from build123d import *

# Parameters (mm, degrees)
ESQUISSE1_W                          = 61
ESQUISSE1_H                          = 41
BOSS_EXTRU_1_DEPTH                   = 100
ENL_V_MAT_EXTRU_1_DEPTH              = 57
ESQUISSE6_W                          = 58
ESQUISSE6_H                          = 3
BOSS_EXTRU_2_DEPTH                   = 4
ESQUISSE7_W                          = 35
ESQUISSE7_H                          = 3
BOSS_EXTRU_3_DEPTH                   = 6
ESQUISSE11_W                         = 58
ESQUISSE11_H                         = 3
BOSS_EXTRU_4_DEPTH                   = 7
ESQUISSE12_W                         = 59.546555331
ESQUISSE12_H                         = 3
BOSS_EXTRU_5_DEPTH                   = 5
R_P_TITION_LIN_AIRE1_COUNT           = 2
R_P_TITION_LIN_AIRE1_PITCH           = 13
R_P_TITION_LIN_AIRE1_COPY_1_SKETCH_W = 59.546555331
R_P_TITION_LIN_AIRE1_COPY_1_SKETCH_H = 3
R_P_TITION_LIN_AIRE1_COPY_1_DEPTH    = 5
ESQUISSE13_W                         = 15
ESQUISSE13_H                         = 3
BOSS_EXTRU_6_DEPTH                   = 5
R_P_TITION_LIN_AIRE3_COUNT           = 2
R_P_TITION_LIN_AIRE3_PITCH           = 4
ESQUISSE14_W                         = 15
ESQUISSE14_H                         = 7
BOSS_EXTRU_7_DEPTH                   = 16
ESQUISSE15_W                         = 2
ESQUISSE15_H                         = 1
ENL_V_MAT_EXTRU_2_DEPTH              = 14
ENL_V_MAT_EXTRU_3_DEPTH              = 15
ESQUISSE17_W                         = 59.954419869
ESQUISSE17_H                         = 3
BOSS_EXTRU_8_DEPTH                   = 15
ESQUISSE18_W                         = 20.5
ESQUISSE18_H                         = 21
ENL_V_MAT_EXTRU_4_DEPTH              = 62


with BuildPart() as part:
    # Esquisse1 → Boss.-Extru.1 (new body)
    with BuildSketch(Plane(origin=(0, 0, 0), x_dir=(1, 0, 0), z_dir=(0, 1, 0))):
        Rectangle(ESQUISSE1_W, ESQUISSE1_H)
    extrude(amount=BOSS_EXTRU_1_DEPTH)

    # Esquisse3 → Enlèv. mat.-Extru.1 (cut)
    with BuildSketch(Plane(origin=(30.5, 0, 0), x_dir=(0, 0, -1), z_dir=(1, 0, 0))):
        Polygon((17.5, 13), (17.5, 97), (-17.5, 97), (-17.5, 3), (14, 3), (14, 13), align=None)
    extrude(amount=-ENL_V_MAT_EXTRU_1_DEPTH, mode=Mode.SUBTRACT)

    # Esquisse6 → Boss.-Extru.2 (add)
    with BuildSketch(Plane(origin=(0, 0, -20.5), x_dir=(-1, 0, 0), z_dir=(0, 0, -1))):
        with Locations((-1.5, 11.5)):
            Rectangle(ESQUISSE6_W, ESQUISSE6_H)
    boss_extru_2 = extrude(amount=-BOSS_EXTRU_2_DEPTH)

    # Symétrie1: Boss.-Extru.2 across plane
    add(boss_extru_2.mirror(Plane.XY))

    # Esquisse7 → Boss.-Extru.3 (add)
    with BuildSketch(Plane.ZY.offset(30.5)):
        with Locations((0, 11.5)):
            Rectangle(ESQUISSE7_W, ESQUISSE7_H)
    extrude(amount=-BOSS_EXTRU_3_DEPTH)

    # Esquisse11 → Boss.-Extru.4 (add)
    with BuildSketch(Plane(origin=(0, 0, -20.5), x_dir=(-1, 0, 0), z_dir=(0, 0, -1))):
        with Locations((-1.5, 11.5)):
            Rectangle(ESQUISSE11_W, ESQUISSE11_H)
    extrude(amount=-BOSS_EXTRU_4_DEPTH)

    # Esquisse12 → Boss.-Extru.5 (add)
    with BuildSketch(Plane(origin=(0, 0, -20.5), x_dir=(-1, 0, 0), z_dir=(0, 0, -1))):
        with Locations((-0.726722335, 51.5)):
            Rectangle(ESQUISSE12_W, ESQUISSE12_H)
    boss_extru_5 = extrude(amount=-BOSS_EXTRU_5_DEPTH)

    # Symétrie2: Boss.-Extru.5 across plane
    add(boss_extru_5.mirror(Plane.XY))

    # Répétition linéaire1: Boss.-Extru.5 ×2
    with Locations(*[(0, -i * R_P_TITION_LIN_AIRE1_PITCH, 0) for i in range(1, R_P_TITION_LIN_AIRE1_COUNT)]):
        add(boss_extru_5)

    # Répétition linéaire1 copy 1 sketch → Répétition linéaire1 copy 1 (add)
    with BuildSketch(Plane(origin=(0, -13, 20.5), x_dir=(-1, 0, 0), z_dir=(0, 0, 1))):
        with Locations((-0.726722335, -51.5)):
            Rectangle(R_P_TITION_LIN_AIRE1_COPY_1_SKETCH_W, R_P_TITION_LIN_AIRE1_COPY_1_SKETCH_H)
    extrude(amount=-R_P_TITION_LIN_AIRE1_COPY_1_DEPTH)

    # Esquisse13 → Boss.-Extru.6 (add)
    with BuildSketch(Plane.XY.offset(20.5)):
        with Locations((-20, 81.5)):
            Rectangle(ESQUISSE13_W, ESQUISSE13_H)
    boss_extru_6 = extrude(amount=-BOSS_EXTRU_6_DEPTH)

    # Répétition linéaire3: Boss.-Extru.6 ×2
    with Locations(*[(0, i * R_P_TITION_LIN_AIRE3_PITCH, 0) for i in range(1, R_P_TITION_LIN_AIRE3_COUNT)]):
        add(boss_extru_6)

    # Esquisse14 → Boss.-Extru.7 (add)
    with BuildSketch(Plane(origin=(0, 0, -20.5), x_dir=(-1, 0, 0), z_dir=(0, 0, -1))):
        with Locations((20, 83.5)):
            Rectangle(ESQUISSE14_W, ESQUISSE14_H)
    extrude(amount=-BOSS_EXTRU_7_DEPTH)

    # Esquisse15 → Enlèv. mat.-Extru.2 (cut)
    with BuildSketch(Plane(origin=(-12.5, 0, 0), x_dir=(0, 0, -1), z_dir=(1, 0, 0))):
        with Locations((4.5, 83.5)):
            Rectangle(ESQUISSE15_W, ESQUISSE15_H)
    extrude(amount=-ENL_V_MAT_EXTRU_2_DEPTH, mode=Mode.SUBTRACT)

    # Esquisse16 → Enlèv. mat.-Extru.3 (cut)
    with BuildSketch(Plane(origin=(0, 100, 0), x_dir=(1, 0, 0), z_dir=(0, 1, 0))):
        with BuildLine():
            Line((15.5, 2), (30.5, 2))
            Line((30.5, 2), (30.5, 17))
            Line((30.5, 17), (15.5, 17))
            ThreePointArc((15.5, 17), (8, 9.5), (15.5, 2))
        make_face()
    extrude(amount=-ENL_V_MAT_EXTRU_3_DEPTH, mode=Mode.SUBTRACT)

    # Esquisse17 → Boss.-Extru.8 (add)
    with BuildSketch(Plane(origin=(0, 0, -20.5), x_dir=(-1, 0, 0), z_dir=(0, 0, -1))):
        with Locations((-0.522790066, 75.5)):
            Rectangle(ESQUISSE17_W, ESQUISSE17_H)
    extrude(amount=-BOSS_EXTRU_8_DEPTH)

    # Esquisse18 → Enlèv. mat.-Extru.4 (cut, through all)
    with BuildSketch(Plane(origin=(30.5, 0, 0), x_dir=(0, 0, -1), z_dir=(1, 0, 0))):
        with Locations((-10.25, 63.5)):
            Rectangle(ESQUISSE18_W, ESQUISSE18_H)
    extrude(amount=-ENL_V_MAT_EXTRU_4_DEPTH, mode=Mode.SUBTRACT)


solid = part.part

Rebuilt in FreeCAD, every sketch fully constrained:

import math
import FreeCAD as App
import Part
import Sketcher

V = App.Vector
Q = App.Units.Quantity


def add_polygon(sketch, points):
    """Adds a closed chain of lines whose ends are joined by coincident constraints."""
    first, n = sketch.GeometryCount, len(points)
    for a, b in zip(points, points[1:] + points[:1]):
        sketch.addGeometry(Part.LineSegment(App.Vector(*a, 0), App.Vector(*b, 0)), False)
    for i in range(n):
        sketch.addConstraint(Sketcher.Constraint("Coincident", first + i, 2, first + (i + 1) % n, 1))

doc = App.newDocument("Part")
body = doc.addObject("PartDesign::Body", "Body")

# Sketch on XZ plane
sketch1 = body.newObject("Sketcher::SketchObject", "Sketch")
sketch1.AttachmentSupport = (doc.getObject("XZ_Plane"), [""])
sketch1.MapMode = "FlatFace"
add_polygon(sketch1, [(-30, -20), (-30, 20), (30, 20), (30, -20)])  # lines 0-3
sketch1.addConstraint(Sketcher.Constraint("Vertical", 0))
sketch1.addConstraint(Sketcher.Constraint("Horizontal", 1))
sketch1.addConstraint(Sketcher.Constraint("Vertical", 2))
sketch1.addConstraint(Sketcher.Constraint("Horizontal", 3))
sketch1.addConstraint(Sketcher.Constraint("Symmetric", 0, 2, 2, 2, -1, 1))
sketch1.addConstraint(Sketcher.Constraint("DistanceX", 1, 1, 1, 2, Q("61 mm")))
sketch1.addConstraint(Sketcher.Constraint("DistanceY", 0, 1, 0, 2, Q("41 mm")))
pad1 = body.newObject("PartDesign::Pad", "Pad")
pad1.Profile = sketch1
pad1.Length = 100
pad1.Reversed = True

# Sketch on YZ plane
sketch2 = body.newObject("Sketcher::SketchObject", "Sketch001")
sketch2.AttachmentSupport = (doc.getObject("YZ_Plane"), [""])
sketch2.MapMode = "FlatFace"
sketch2.AttachmentOffset = App.Placement(V(0, 0, 30.5), App.Rotation())
add_polygon(sketch2, [(13, -17.5), (97, -17.5), (97, 17.5), (3, 17.5), (3, -14), (13, -14)])  # lines 0-5
sketch2.addConstraint(Sketcher.Constraint("Horizontal", 0))
sketch2.addConstraint(Sketcher.Constraint("Vertical", 1))
sketch2.addConstraint(Sketcher.Constraint("Horizontal", 2))
sketch2.addConstraint(Sketcher.Constraint("Vertical", 3))
sketch2.addConstraint(Sketcher.Constraint("Horizontal", 4))
sketch2.addConstraint(Sketcher.Constraint("Vertical", 5))
sketch2.addConstraint(Sketcher.Constraint("DistanceX", 0, 1, 0, 2, Q("84 mm")))
sketch2.addConstraint(Sketcher.Constraint("DistanceX", 2, 2, 2, 1, Q("94 mm")))
sketch2.addConstraint(Sketcher.Constraint("DistanceY", 1, 1, 1, 2, Q("35 mm")))
sketch2.addConstraint(Sketcher.Constraint("DistanceY", 3, 2, 3, 1, Q("31.5 mm")))
sketch2.addConstraint(Sketcher.Constraint("DistanceX", -1, 1, 0, 2, Q("97 mm")))
sketch2.addConstraint(Sketcher.Constraint("DistanceY", 3, 2, -1, 1, Q("14 mm")))
pocket1 = body.newObject("PartDesign::Pocket", "Pocket")
pocket1.Profile = sketch2
pocket1.Length = 57

# Sketch on XY plane
sketch3 = body.newObject("Sketcher::SketchObject", "Sketch002")
sketch3.AttachmentSupport = (doc.getObject("XY_Plane"), [""])
sketch3.MapMode = "FlatFace"
sketch3.AttachmentOffset = App.Placement(V(0, 0, -20.5), App.Rotation())
add_polygon(sketch3, [(30.5, 13), (30.5, 10), (-27.5, 10), (-27.5, 13)])  # lines 0-3
sketch3.addConstraint(Sketcher.Constraint("Vertical", 0))
sketch3.addConstraint(Sketcher.Constraint("Horizontal", 1))
sketch3.addConstraint(Sketcher.Constraint("Vertical", 2))
sketch3.addConstraint(Sketcher.Constraint("Horizontal", 3))
sketch3.addConstraint(Sketcher.Constraint("DistanceX", 1, 2, 1, 1, Q("58 mm")))
sketch3.addConstraint(Sketcher.Constraint("DistanceY", 0, 2, 0, 1, Q("3 mm")))
sketch3.addConstraint(Sketcher.Constraint("DistanceY", -1, 1, 0, 2, Q("10 mm")))
sketch3.addConstraint(Sketcher.Constraint("DistanceX", -1, 1, 0, 2, Q("30.5 mm")))
pad2 = body.newObject("PartDesign::Pad", "Pad001")
pad2.Profile = sketch3
pad2.Length = 4
doc.recompute()

mirrored = body.newObject("PartDesign::Mirrored", "Mirrored")
mirrored.Originals = [pad2]
mirrored.MirrorPlane = (doc.getObject("XY_Plane"), [""])
body.Tip = mirrored

# Sketch on YZ plane
sketch4 = body.newObject("Sketcher::SketchObject", "Sketch003")
sketch4.AttachmentSupport = (doc.getObject("YZ_Plane"), [""])
sketch4.MapMode = "FlatFace"
sketch4.AttachmentOffset = App.Placement(V(0, 0, -30.5), App.Rotation())
add_polygon(sketch4, [(13, -17.5), (10, -17.5), (10, 17.5), (13, 17.5)])  # lines 0-3
sketch4.addConstraint(Sketcher.Constraint("Horizontal", 0))
sketch4.addConstraint(Sketcher.Constraint("Vertical", 1))
sketch4.addConstraint(Sketcher.Constraint("Horizontal", 2))
sketch4.addConstraint(Sketcher.Constraint("Vertical", 3))
sketch4.addConstraint(Sketcher.Constraint("DistanceX", 0, 2, 0, 1, Q("3 mm")))
sketch4.addConstraint(Sketcher.Constraint("DistanceY", 1, 1, 1, 2, Q("35 mm")))
sketch4.addConstraint(Sketcher.Constraint("DistanceX", -1, 1, 0, 2, Q("10 mm")))
sketch4.addConstraint(Sketcher.Constraint("DistanceY", 0, 2, -1, 1, Q("17.5 mm")))
pad3 = body.newObject("PartDesign::Pad", "Pad002")
pad3.Profile = sketch4
pad3.Length = 6

# Sketch on XY plane
sketch5 = body.newObject("Sketcher::SketchObject", "Sketch004")
sketch5.AttachmentSupport = (doc.getObject("XY_Plane"), [""])
sketch5.MapMode = "FlatFace"
sketch5.AttachmentOffset = App.Placement(V(0, 0, -20.5), App.Rotation())
add_polygon(sketch5, [(30.5, 13), (30.5, 10), (-27.5, 10), (-27.5, 13)])  # lines 0-3
sketch5.addConstraint(Sketcher.Constraint("Vertical", 0))
sketch5.addConstraint(Sketcher.Constraint("Horizontal", 1))
sketch5.addConstraint(Sketcher.Constraint("Vertical", 2))
sketch5.addConstraint(Sketcher.Constraint("Horizontal", 3))
sketch5.addConstraint(Sketcher.Constraint("DistanceX", 1, 2, 1, 1, Q("58 mm")))
sketch5.addConstraint(Sketcher.Constraint("DistanceY", 0, 2, 0, 1, Q("3 mm")))
sketch5.addConstraint(Sketcher.Constraint("DistanceY", -1, 1, 0, 2, Q("10 mm")))
sketch5.addConstraint(Sketcher.Constraint("DistanceX", -1, 1, 0, 2, Q("30.5 mm")))
pad4 = body.newObject("PartDesign::Pad", "Pad003")
pad4.Profile = sketch5
pad4.Length = 7

# Sketch on XY plane
sketch6 = body.newObject("Sketcher::SketchObject", "Sketch005")
sketch6.AttachmentSupport = (doc.getObject("XY_Plane"), [""])
sketch6.MapMode = "FlatFace"
sketch6.AttachmentOffset = App.Placement(V(0, 0, -20.5), App.Rotation())
add_polygon(sketch6, [(30.5, 53), (30.5, 50), (-29, 50), (-29, 53)])  # lines 0-3
sketch6.addConstraint(Sketcher.Constraint("Vertical", 0))
sketch6.addConstraint(Sketcher.Constraint("Horizontal", 1))
sketch6.addConstraint(Sketcher.Constraint("Vertical", 2))
sketch6.addConstraint(Sketcher.Constraint("Horizontal", 3))
sketch6.addConstraint(Sketcher.Constraint("DistanceY", 0, 2, 0, 1, Q("3 mm")))
sketch6.addConstraint(Sketcher.Constraint("DistanceY", -1, 1, 0, 2, Q("50 mm")))
sketch6.addConstraint(Sketcher.Constraint("DistanceX", -1, 1, 0, 2, Q("30.5 mm")))
sketch6.addConstraint(Sketcher.Constraint("DistanceX", 1, 2, 1, 1, Q("59.546555 mm")))
pad5 = body.newObject("PartDesign::Pad", "Pad004")
pad5.Profile = sketch6
pad5.Length = 5
doc.recompute()

mirrored2 = body.newObject("PartDesign::Mirrored", "Mirrored001")
mirrored2.Originals = [pad5]
mirrored2.MirrorPlane = (doc.getObject("XY_Plane"), [""])
body.Tip = mirrored2
doc.recompute()

linearpattern = body.newObject("PartDesign::LinearPattern", "LinearPattern")
linearpattern.Originals = [pad5]
linearpattern.Direction = (doc.getObject("Y_Axis"), [""])
linearpattern.Mode = "offset"
linearpattern.Offset = 13
linearpattern.Occurrences = 2
linearpattern.Reversed = True
body.Tip = linearpattern

# Sketch on XY plane
sketch7 = body.newObject("Sketcher::SketchObject", "Sketch006")
sketch7.AttachmentSupport = (doc.getObject("XY_Plane"), [""])
sketch7.MapMode = "FlatFace"
sketch7.AttachmentOffset = App.Placement(V(0, 0, 20.5), App.Rotation())
add_polygon(sketch7, [(30.5, 37), (30.5, 40), (-29, 40), (-29, 37)])  # lines 0-3
sketch7.addConstraint(Sketcher.Constraint("Vertical", 0))
sketch7.addConstraint(Sketcher.Constraint("Horizontal", 1))
sketch7.addConstraint(Sketcher.Constraint("Vertical", 2))
sketch7.addConstraint(Sketcher.Constraint("Horizontal", 3))
sketch7.addConstraint(Sketcher.Constraint("DistanceY", 0, 1, 0, 2, Q("3 mm")))
sketch7.addConstraint(Sketcher.Constraint("DistanceY", -1, 1, 0, 2, Q("40 mm")))
sketch7.addConstraint(Sketcher.Constraint("DistanceX", -1, 1, 0, 2, Q("30.5 mm")))
sketch7.addConstraint(Sketcher.Constraint("DistanceX", 1, 2, 1, 1, Q("59.546555 mm")))
pad6 = body.newObject("PartDesign::Pad", "Pad005")
pad6.Profile = sketch7
pad6.Length = 5
pad6.Reversed = True

# Sketch on XY plane
sketch8 = body.newObject("Sketcher::SketchObject", "Sketch007")
sketch8.AttachmentSupport = (doc.getObject("XY_Plane"), [""])
sketch8.MapMode = "FlatFace"
sketch8.AttachmentOffset = App.Placement(V(0, 0, 20.5), App.Rotation())
add_polygon(sketch8, [(-27.5, 83), (-27.5, 80), (-12.5, 80), (-12.5, 83)])  # lines 0-3
sketch8.addConstraint(Sketcher.Constraint("Vertical", 0))
sketch8.addConstraint(Sketcher.Constraint("Horizontal", 1))
sketch8.addConstraint(Sketcher.Constraint("Vertical", 2))
sketch8.addConstraint(Sketcher.Constraint("Horizontal", 3))
sketch8.addConstraint(Sketcher.Constraint("DistanceX", 1, 1, 1, 2, Q("15 mm")))
sketch8.addConstraint(Sketcher.Constraint("DistanceY", 0, 2, 0, 1, Q("3 mm")))
sketch8.addConstraint(Sketcher.Constraint("DistanceY", -1, 1, 0, 2, Q("80 mm")))
sketch8.addConstraint(Sketcher.Constraint("DistanceX", 0, 2, -1, 1, Q("27.5 mm")))
pad7 = body.newObject("PartDesign::Pad", "Pad006")
pad7.Profile = sketch8
pad7.Length = 5
pad7.Reversed = True
doc.recompute()

linearpattern2 = body.newObject("PartDesign::LinearPattern", "LinearPattern001")
linearpattern2.Originals = [pad7]
linearpattern2.Direction = (doc.getObject("Y_Axis"), [""])
linearpattern2.Mode = "offset"
linearpattern2.Offset = 4
linearpattern2.Occurrences = 2
body.Tip = linearpattern2

# Sketch on XY plane
sketch9 = body.newObject("Sketcher::SketchObject", "Sketch008")
sketch9.AttachmentSupport = (doc.getObject("XY_Plane"), [""])
sketch9.MapMode = "FlatFace"
sketch9.AttachmentOffset = App.Placement(V(0, 0, -20.5), App.Rotation())
add_polygon(sketch9, [(-12, 87), (-12, 80), (-28, 80), (-28, 87)])  # lines 0-3
sketch9.addConstraint(Sketcher.Constraint("Vertical", 0))
sketch9.addConstraint(Sketcher.Constraint("Horizontal", 1))
sketch9.addConstraint(Sketcher.Constraint("Vertical", 2))
sketch9.addConstraint(Sketcher.Constraint("Horizontal", 3))
sketch9.addConstraint(Sketcher.Constraint("DistanceX", 1, 2, 1, 1, Q("15 mm")))
sketch9.addConstraint(Sketcher.Constraint("DistanceY", 0, 2, 0, 1, Q("7 mm")))
sketch9.addConstraint(Sketcher.Constraint("DistanceY", -1, 1, 0, 2, Q("80 mm")))
sketch9.addConstraint(Sketcher.Constraint("DistanceX", 0, 2, -1, 1, Q("12.5 mm")))
pad8 = body.newObject("PartDesign::Pad", "Pad007")
pad8.Profile = sketch9
pad8.Length = 16

# Sketch on YZ plane
sketch10 = body.newObject("Sketcher::SketchObject", "Sketch009")
sketch10.AttachmentSupport = (doc.getObject("YZ_Plane"), [""])
sketch10.MapMode = "FlatFace"
sketch10.AttachmentOffset = App.Placement(V(0, 0, -12.5), App.Rotation())
add_polygon(sketch10, [(84, -3.5), (83, -3.5), (83, -5.5), (84, -5.5)])  # lines 0-3
sketch10.addConstraint(Sketcher.Constraint("Horizontal", 0))
sketch10.addConstraint(Sketcher.Constraint("Vertical", 1))
sketch10.addConstraint(Sketcher.Constraint("Horizontal", 2))
sketch10.addConstraint(Sketcher.Constraint("Vertical", 3))
sketch10.addConstraint(Sketcher.Constraint("DistanceX", 0, 2, 0, 1, Q("1 mm")))
sketch10.addConstraint(Sketcher.Constraint("DistanceY", 1, 2, 1, 1, Q("2 mm")))
sketch10.addConstraint(Sketcher.Constraint("DistanceX", -1, 1, 0, 2, Q("83 mm")))
sketch10.addConstraint(Sketcher.Constraint("DistanceY", 0, 2, -1, 1, Q("3.5 mm")))
pocket2 = body.newObject("PartDesign::Pocket", "Pocket001")
pocket2.Profile = sketch10
pocket2.Length = 14

# Sketch on XZ plane
sketch11 = body.newObject("Sketcher::SketchObject", "Sketch010")
sketch11.AttachmentSupport = (doc.getObject("XZ_Plane"), [""])
sketch11.MapMode = "FlatFace"
sketch11.AttachmentOffset = App.Placement(V(0, 0, -100), App.Rotation())
sketch11.addGeometry(Part.LineSegment(V(16, -2, 0), V(30, -2, 0)), False)
sketch11.addGeometry(Part.LineSegment(V(30, -2, 0), V(30, -17, 0)), False)
sketch11.addGeometry(Part.LineSegment(V(30, -17, 0), V(16, -17, 0)), False)
sketch11.addGeometry(Part.ArcOfCircle(Part.Circle(V(16, -10, 0), V(0, 0, 1), 8), math.radians(90), math.radians(270)), False)
sketch11.addConstraint(Sketcher.Constraint("Coincident", 0, 2, 1, 1))
sketch11.addConstraint(Sketcher.Constraint("Coincident", 1, 2, 2, 1))
sketch11.addConstraint(Sketcher.Constraint("Tangent", 2, 2, 3, 2))
sketch11.addConstraint(Sketcher.Constraint("Tangent", 3, 1, 0, 1))
sketch11.addConstraint(Sketcher.Constraint("Horizontal", 0))
sketch11.addConstraint(Sketcher.Constraint("Vertical", 1))
sketch11.addConstraint(Sketcher.Constraint("Horizontal", 2))
sketch11.addConstraint(Sketcher.Constraint("Equal", 2, 1))
sketch11.addConstraint(Sketcher.Constraint("Radius", 3, Q("7.5 mm")))
sketch11.addConstraint(Sketcher.Constraint("DistanceY", 0, 2, -1, 1, Q("2 mm")))
sketch11.addConstraint(Sketcher.Constraint("DistanceX", -1, 1, 3, 3, Q("15.5 mm")))
pocket3 = body.newObject("PartDesign::Pocket", "Pocket002")
pocket3.Profile = sketch11
pocket3.Length = 15
pocket3.Reversed = True

# Sketch on XY plane
sketch12 = body.newObject("Sketcher::SketchObject", "Sketch011")
sketch12.AttachmentSupport = (doc.getObject("XY_Plane"), [""])
sketch12.MapMode = "FlatFace"
sketch12.AttachmentOffset = App.Placement(V(0, 0, -20.5), App.Rotation())
add_polygon(sketch12, [(30.5, 77), (30.5, 74), (-29.5, 74), (-29.5, 77)])  # lines 0-3
sketch12.addConstraint(Sketcher.Constraint("Vertical", 0))
sketch12.addConstraint(Sketcher.Constraint("Horizontal", 1))
sketch12.addConstraint(Sketcher.Constraint("Vertical", 2))
sketch12.addConstraint(Sketcher.Constraint("Horizontal", 3))
sketch12.addConstraint(Sketcher.Constraint("DistanceY", 0, 2, 0, 1, Q("3 mm")))
sketch12.addConstraint(Sketcher.Constraint("DistanceY", -1, 1, 0, 2, Q("74 mm")))
sketch12.addConstraint(Sketcher.Constraint("DistanceX", -1, 1, 0, 2, Q("30.5 mm")))
sketch12.addConstraint(Sketcher.Constraint("DistanceX", 1, 2, 1, 1, Q("59.95442 mm")))
pad9 = body.newObject("PartDesign::Pad", "Pad008")
pad9.Profile = sketch12
pad9.Length = 15

# Sketch on YZ plane
sketch13 = body.newObject("Sketcher::SketchObject", "Sketch012")
sketch13.AttachmentSupport = (doc.getObject("YZ_Plane"), [""])
sketch13.MapMode = "FlatFace"
sketch13.AttachmentOffset = App.Placement(V(0, 0, 30.5), App.Rotation())
add_polygon(sketch13, [(74, 20), (53, 20), (53, 0), (74, 0)])  # lines 0-3
sketch13.addConstraint(Sketcher.Constraint("Horizontal", 0))
sketch13.addConstraint(Sketcher.Constraint("Vertical", 1))
sketch13.addConstraint(Sketcher.Constraint("Horizontal", 2))
sketch13.addConstraint(Sketcher.Constraint("Vertical", 3))
sketch13.addConstraint(Sketcher.Constraint("PointOnObject", 1, 2, -1))
sketch13.addConstraint(Sketcher.Constraint("DistanceX", 0, 2, 0, 1, Q("21 mm")))
sketch13.addConstraint(Sketcher.Constraint("DistanceY", 1, 2, 1, 1, Q("20.5 mm")))
sketch13.addConstraint(Sketcher.Constraint("DistanceX", -1, 1, 0, 2, Q("53 mm")))
pocket4 = body.newObject("PartDesign::Pocket", "Pocket003")
pocket4.Profile = sketch13
pocket4.Type = "ThroughAll"

doc.recompute()
